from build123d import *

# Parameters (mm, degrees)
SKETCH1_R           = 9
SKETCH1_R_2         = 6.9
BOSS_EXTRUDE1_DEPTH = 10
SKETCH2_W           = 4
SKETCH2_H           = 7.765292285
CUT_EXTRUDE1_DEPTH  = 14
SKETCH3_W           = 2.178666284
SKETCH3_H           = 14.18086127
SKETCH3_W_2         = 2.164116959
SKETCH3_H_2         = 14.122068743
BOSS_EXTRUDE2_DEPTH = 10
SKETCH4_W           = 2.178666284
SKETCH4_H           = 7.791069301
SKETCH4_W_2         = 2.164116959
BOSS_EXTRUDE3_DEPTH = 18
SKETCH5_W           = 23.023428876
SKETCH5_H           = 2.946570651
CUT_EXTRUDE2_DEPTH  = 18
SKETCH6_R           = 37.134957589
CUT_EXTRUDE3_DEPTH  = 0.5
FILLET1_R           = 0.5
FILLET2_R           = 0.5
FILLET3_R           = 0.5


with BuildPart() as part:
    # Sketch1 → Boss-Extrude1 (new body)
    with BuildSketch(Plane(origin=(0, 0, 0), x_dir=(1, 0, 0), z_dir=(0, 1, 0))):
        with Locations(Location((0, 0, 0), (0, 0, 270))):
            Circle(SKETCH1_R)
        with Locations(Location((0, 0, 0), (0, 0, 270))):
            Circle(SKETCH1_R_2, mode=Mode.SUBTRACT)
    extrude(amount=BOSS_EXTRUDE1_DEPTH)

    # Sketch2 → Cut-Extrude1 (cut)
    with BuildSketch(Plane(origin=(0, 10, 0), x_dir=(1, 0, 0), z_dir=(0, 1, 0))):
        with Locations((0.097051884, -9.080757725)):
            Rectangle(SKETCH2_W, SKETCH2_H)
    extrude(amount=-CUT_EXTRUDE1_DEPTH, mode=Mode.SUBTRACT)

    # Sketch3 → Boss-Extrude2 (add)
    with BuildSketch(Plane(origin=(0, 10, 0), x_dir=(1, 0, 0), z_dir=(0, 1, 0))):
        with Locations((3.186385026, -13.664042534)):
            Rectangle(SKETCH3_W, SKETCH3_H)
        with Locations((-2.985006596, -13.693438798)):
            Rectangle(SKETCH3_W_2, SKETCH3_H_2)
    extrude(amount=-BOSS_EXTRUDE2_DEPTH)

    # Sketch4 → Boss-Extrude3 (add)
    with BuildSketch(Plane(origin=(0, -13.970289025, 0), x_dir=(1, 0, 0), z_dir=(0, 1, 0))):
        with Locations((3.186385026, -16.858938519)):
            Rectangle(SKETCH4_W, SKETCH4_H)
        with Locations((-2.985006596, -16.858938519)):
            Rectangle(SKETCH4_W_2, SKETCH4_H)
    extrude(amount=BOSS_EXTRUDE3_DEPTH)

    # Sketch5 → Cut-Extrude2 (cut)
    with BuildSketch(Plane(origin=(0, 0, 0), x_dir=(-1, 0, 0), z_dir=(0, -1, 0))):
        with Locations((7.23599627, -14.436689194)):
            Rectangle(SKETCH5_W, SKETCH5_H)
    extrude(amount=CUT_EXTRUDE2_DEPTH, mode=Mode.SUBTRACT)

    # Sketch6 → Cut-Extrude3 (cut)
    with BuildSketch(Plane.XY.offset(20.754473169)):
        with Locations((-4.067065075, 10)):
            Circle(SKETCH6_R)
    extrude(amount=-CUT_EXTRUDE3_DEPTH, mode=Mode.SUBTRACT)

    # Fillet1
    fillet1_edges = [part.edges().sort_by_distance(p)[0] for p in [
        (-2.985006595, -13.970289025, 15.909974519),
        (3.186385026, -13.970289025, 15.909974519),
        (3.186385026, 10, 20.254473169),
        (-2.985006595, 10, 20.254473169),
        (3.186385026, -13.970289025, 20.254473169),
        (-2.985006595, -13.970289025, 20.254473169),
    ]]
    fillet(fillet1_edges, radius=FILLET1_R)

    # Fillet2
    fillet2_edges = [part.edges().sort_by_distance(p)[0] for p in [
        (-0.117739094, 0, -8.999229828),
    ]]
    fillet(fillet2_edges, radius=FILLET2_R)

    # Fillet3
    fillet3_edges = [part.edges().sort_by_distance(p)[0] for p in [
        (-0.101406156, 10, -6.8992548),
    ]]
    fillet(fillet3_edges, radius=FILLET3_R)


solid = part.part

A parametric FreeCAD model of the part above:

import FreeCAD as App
import Part
import Sketcher

V = App.Vector
Q = App.Units.Quantity


def edges_at(feature, points):
    """Names of the edges that pass closest to the given points."""
    edges = feature.Shape.Edges
    near = lambda p: min(range(len(edges)), key=lambda i: edges[i].distToShape(Part.Vertex(*p))[0])
    return sorted({f"Edge{near(p) + 1}" for p in points})


def add_polygon(sketch, points):
    """Adds a closed chain of lines whose ends are joined by coincident constraints."""
    first, n = sketch.GeometryCount, len(points)
    for a, b in zip(points, points[1:] + points[:1]):
        sketch.addGeometry(Part.LineSegment(App.Vector(*a, 0), App.Vector(*b, 0)), False)
    for i in range(n):
        sketch.addConstraint(Sketcher.Constraint("Coincident", first + i, 2, first + (i + 1) % n, 1))

doc = App.newDocument("Part")
body = doc.addObject("PartDesign::Body", "Body")

sketch1 = body.newObject("Sketcher::SketchObject", "Sketch")
sketch1.AttachmentSupport = (doc.getObject("XZ_Plane"), [""])
sketch1.MapMode = "FlatFace"
sketch1.addGeometry([
    Part.Circle(V(0, 0, 0), V(0, 0, 1), 9),
    Part.Circle(V(0, 0, 0), V(0, 0, 1), 7),
], False)
sketch1.addConstraint([
    Sketcher.Constraint("Coincident", 0, 3, -1, 1),
    Sketcher.Constraint("Coincident", 1, 3, -1, 1),
    Sketcher.Constraint("Diameter", 0, Q("18 mm")),
    Sketcher.Constraint("Diameter", 1, Q("13.8 mm")),
])
pad1 = body.newObject("PartDesign::Pad", "Pad")
pad1.Profile = sketch1
pad1.Length = 10
pad1.Reversed = True

sketch2 = body.newObject("Sketcher::SketchObject", "Sketch001")
sketch2.AttachmentSupport = (doc.getObject("XZ_Plane"), [""])
sketch2.MapMode = "FlatFace"
sketch2.AttachmentOffset = App.Placement(V(0, 0, -10), App.Rotation())
add_polygon(sketch2, [(-1.9, 5.2), (-1.9, 13), (2.1, 13), (2.1, 5.2)])
sketch2.addConstraint([
    Sketcher.Constraint("Vertical", 0),
    Sketcher.Constraint("Horizontal", 1),
    Sketcher.Constraint("Vertical", 2),
    Sketcher.Constraint("Horizontal", 3),
    Sketcher.Constraint("DistanceX", 1, 1, 1, 2, Q("4 mm")),
    Sketcher.Constraint("DistanceY", 0, 1, 0, 2, Q("7.765292 mm")),
    Sketcher.Constraint("DistanceX", 0, 2, -1, 1, Q("1.902948 mm")),
    Sketcher.Constraint("DistanceY", -1, 1, 2, 2, Q("5.198112 mm")),
])
pocket1 = body.newObject("PartDesign::Pocket", "Pocket")
pocket1.Profile = sketch2
pocket1.Length = 14
pocket1.Reversed = True

sketch3 = body.newObject("Sketcher::SketchObject", "Sketch002")
sketch3.AttachmentSupport = (doc.getObject("XZ_Plane"), [""])
sketch3.MapMode = "FlatFace"
sketch3.AttachmentOffset = App.Placement(V(0, 0, -10), App.Rotation())
add_polygon(sketch3, [(2.1, 6.6), (2.1, 20.8), (4.3, 20.8), (4.3, 6.6)])
add_polygon(sketch3, [(-4.1, 6.6), (-4.1, 20.8), (-1.9, 20.8), (-1.9, 6.6)])
sketch3.addConstraint([
    Sketcher.Constraint("Vertical", 0),
    Sketcher.Constraint("Horizontal", 1),
    Sketcher.Constraint("Vertical", 2),
    Sketcher.Constraint("Horizontal", 3),
    Sketcher.Constraint("Vertical", 4),
    Sketcher.Constraint("Horizontal", 5),
    Sketcher.Constraint("Vertical", 6),
    Sketcher.Constraint("Horizontal", 7),
    Sketcher.Constraint("Horizontal", 1, 2, 4, 2),
    Sketcher.Constraint("DistanceX", 5, 2, 0, 2, Q("4 mm")),
    Sketcher.Constraint("DistanceY", 0, 1, 0, 2, Q("14.180861 mm")),
    Sketcher.Constraint("DistanceY", 4, 1, 4, 2, Q("14.122069 mm")),
    Sketcher.Constraint("DistanceX", 1, 1, 1, 2, Q("2.178666 mm")),
    Sketcher.Constraint("DistanceX", 5, 1, 5, 2, Q("2.164117 mm")),
    Sketcher.Constraint("DistanceX", -1, 1, 0, 2, Q("2.097052 mm")),
    Sketcher.Constraint("DistanceY", -1, 1, 2, 2, Q("6.573612 mm")),
])
pad2 = body.newObject("PartDesign::Pad", "Pad001")
pad2.Profile = sketch3
pad2.Length = 10

sketch4 = body.newObject("Sketcher::SketchObject", "Sketch003")
sketch4.AttachmentSupport = (doc.getObject("XZ_Plane"), [""])
sketch4.MapMode = "FlatFace"
sketch4.AttachmentOffset = App.Placement(V(0, 0, 13.970289), App.Rotation())
add_polygon(sketch4, [(2.1, 13), (2.1, 20.8), (4.3, 20.8), (4.3, 13)])
add_polygon(sketch4, [(-4.1, 13), (-4.1, 20.8), (-1.9, 20.8), (-1.9, 13)])
sketch4.addConstraint([
    Sketcher.Constraint("Vertical", 0),
    Sketcher.Constraint("Horizontal", 1),
    Sketcher.Constraint("Vertical", 2),
    Sketcher.Constraint("Horizontal", 3),
    Sketcher.Constraint("Vertical", 4),
    Sketcher.Constraint("Horizontal", 5),
    Sketcher.Constraint("Vertical", 6),
    Sketcher.Constraint("Horizontal", 7),
    Sketcher.Constraint("Horizontal", 1, 2, 4, 2),
    Sketcher.Constraint("Horizontal", 3, 2, 6, 2),
    Sketcher.Constraint("DistanceX", 5, 2, 0, 2, Q("4 mm")),
    Sketcher.Constraint("DistanceY", 0, 1, 0, 2, Q("7.791069 mm")),
    Sketcher.Constraint("DistanceX", 1, 1, 1, 2, Q("2.178666 mm")),
    Sketcher.Constraint("DistanceX", 5, 1, 5, 2, Q("2.164117 mm")),
    Sketcher.Constraint("DistanceX", -1, 1, 0, 2, Q("2.097052 mm")),
    Sketcher.Constraint("DistanceY", -1, 1, 0, 2, Q("20.754473 mm")),
])
pad3 = body.newObject("PartDesign::Pad", "Pad002")
pad3.Profile = sketch4
pad3.Length = 18
pad3.Reversed = True

sketch5 = body.newObject("Sketcher::SketchObject", "Sketch004")
sketch5.AttachmentSupport = (doc.getObject("XZ_Plane"), [""])
sketch5.MapMode = "FlatFace"
add_polygon(sketch5, [(4.3, 13), (4.3, 15.9), (-18.7, 15.9), (-18.7, 13)])
sketch5.addConstraint([
    Sketcher.Constraint("Vertical", 0),
    Sketcher.Constraint("Horizontal", 1),
    Sketcher.Constraint("Vertical", 2),
    Sketcher.Constraint("Horizontal", 3),
    Sketcher.Constraint("DistanceX", 1, 2, 1, 1, Q("23.023429 mm")),
    Sketcher.Constraint("DistanceY", 0, 1, 0, 2, Q("2.946571 mm")),
    Sketcher.Constraint("DistanceX", -1, 1, 0, 2, Q("4.275718 mm")),
    Sketcher.Constraint("DistanceY", -1, 1, 0, 2, Q("15.909975 mm")),
])
pocket2 = body.newObject("PartDesign::Pocket", "Pocket001")
pocket2.Profile = sketch5
pocket2.Length = 18
pocket2.Reversed = True

sketch6 = body.newObject("Sketcher::SketchObject", "Sketch005")
sketch6.AttachmentSupport = (doc.getObject("XY_Plane"), [""])
sketch6.MapMode = "FlatFace"
sketch6.AttachmentOffset = App.Placement(V(0, 0, 20.754473), App.Rotation())
sketch6.addGeometry(Part.Circle(V(-4, 10, 0), V(0, 0, 1), 37), False)
sketch6.addConstraint([
    Sketcher.Constraint("DistanceY", -1, 1, 0, 3, Q("10 mm")),
    Sketcher.Constraint("Diameter", 0, Q("74.269915 mm")),
    Sketcher.Constraint("DistanceX", 0, 3, -1, 1, Q("4.067065 mm")),
])
pocket3 = body.newObject("PartDesign::Pocket", "Pocket002")
pocket3.Profile = sketch6
pocket3.Length = 0.5
doc.recompute()

fillet = body.newObject("PartDesign::Fillet", "Fillet")
fillet.Base = (pocket3, edges_at(pocket3, [
    (-2.985, -13.97, 15.91),
    (3.186, -13.97, 15.91),
    (3.186, 10, 20.254),
    (-2.985, 10, 20.254),
    (3.186, -13.97, 20.254),
    (-2.985, -13.97, 20.254),
]))
fillet.Radius = 0.5
doc.recompute()

fillet2 = body.newObject("PartDesign::Fillet", "Fillet001")
fillet2.Base = (fillet, edges_at(fillet, [(-0.118, 0, -8.999)]))
fillet2.Radius = 0.5
doc.recompute()

fillet3 = body.newObject("PartDesign::Fillet", "Fillet002")
fillet3.Base = (fillet2, edges_at(fillet2, [(-0.101, 10, -6.899)]))
fillet3.Radius = 0.5

doc.recompute()
